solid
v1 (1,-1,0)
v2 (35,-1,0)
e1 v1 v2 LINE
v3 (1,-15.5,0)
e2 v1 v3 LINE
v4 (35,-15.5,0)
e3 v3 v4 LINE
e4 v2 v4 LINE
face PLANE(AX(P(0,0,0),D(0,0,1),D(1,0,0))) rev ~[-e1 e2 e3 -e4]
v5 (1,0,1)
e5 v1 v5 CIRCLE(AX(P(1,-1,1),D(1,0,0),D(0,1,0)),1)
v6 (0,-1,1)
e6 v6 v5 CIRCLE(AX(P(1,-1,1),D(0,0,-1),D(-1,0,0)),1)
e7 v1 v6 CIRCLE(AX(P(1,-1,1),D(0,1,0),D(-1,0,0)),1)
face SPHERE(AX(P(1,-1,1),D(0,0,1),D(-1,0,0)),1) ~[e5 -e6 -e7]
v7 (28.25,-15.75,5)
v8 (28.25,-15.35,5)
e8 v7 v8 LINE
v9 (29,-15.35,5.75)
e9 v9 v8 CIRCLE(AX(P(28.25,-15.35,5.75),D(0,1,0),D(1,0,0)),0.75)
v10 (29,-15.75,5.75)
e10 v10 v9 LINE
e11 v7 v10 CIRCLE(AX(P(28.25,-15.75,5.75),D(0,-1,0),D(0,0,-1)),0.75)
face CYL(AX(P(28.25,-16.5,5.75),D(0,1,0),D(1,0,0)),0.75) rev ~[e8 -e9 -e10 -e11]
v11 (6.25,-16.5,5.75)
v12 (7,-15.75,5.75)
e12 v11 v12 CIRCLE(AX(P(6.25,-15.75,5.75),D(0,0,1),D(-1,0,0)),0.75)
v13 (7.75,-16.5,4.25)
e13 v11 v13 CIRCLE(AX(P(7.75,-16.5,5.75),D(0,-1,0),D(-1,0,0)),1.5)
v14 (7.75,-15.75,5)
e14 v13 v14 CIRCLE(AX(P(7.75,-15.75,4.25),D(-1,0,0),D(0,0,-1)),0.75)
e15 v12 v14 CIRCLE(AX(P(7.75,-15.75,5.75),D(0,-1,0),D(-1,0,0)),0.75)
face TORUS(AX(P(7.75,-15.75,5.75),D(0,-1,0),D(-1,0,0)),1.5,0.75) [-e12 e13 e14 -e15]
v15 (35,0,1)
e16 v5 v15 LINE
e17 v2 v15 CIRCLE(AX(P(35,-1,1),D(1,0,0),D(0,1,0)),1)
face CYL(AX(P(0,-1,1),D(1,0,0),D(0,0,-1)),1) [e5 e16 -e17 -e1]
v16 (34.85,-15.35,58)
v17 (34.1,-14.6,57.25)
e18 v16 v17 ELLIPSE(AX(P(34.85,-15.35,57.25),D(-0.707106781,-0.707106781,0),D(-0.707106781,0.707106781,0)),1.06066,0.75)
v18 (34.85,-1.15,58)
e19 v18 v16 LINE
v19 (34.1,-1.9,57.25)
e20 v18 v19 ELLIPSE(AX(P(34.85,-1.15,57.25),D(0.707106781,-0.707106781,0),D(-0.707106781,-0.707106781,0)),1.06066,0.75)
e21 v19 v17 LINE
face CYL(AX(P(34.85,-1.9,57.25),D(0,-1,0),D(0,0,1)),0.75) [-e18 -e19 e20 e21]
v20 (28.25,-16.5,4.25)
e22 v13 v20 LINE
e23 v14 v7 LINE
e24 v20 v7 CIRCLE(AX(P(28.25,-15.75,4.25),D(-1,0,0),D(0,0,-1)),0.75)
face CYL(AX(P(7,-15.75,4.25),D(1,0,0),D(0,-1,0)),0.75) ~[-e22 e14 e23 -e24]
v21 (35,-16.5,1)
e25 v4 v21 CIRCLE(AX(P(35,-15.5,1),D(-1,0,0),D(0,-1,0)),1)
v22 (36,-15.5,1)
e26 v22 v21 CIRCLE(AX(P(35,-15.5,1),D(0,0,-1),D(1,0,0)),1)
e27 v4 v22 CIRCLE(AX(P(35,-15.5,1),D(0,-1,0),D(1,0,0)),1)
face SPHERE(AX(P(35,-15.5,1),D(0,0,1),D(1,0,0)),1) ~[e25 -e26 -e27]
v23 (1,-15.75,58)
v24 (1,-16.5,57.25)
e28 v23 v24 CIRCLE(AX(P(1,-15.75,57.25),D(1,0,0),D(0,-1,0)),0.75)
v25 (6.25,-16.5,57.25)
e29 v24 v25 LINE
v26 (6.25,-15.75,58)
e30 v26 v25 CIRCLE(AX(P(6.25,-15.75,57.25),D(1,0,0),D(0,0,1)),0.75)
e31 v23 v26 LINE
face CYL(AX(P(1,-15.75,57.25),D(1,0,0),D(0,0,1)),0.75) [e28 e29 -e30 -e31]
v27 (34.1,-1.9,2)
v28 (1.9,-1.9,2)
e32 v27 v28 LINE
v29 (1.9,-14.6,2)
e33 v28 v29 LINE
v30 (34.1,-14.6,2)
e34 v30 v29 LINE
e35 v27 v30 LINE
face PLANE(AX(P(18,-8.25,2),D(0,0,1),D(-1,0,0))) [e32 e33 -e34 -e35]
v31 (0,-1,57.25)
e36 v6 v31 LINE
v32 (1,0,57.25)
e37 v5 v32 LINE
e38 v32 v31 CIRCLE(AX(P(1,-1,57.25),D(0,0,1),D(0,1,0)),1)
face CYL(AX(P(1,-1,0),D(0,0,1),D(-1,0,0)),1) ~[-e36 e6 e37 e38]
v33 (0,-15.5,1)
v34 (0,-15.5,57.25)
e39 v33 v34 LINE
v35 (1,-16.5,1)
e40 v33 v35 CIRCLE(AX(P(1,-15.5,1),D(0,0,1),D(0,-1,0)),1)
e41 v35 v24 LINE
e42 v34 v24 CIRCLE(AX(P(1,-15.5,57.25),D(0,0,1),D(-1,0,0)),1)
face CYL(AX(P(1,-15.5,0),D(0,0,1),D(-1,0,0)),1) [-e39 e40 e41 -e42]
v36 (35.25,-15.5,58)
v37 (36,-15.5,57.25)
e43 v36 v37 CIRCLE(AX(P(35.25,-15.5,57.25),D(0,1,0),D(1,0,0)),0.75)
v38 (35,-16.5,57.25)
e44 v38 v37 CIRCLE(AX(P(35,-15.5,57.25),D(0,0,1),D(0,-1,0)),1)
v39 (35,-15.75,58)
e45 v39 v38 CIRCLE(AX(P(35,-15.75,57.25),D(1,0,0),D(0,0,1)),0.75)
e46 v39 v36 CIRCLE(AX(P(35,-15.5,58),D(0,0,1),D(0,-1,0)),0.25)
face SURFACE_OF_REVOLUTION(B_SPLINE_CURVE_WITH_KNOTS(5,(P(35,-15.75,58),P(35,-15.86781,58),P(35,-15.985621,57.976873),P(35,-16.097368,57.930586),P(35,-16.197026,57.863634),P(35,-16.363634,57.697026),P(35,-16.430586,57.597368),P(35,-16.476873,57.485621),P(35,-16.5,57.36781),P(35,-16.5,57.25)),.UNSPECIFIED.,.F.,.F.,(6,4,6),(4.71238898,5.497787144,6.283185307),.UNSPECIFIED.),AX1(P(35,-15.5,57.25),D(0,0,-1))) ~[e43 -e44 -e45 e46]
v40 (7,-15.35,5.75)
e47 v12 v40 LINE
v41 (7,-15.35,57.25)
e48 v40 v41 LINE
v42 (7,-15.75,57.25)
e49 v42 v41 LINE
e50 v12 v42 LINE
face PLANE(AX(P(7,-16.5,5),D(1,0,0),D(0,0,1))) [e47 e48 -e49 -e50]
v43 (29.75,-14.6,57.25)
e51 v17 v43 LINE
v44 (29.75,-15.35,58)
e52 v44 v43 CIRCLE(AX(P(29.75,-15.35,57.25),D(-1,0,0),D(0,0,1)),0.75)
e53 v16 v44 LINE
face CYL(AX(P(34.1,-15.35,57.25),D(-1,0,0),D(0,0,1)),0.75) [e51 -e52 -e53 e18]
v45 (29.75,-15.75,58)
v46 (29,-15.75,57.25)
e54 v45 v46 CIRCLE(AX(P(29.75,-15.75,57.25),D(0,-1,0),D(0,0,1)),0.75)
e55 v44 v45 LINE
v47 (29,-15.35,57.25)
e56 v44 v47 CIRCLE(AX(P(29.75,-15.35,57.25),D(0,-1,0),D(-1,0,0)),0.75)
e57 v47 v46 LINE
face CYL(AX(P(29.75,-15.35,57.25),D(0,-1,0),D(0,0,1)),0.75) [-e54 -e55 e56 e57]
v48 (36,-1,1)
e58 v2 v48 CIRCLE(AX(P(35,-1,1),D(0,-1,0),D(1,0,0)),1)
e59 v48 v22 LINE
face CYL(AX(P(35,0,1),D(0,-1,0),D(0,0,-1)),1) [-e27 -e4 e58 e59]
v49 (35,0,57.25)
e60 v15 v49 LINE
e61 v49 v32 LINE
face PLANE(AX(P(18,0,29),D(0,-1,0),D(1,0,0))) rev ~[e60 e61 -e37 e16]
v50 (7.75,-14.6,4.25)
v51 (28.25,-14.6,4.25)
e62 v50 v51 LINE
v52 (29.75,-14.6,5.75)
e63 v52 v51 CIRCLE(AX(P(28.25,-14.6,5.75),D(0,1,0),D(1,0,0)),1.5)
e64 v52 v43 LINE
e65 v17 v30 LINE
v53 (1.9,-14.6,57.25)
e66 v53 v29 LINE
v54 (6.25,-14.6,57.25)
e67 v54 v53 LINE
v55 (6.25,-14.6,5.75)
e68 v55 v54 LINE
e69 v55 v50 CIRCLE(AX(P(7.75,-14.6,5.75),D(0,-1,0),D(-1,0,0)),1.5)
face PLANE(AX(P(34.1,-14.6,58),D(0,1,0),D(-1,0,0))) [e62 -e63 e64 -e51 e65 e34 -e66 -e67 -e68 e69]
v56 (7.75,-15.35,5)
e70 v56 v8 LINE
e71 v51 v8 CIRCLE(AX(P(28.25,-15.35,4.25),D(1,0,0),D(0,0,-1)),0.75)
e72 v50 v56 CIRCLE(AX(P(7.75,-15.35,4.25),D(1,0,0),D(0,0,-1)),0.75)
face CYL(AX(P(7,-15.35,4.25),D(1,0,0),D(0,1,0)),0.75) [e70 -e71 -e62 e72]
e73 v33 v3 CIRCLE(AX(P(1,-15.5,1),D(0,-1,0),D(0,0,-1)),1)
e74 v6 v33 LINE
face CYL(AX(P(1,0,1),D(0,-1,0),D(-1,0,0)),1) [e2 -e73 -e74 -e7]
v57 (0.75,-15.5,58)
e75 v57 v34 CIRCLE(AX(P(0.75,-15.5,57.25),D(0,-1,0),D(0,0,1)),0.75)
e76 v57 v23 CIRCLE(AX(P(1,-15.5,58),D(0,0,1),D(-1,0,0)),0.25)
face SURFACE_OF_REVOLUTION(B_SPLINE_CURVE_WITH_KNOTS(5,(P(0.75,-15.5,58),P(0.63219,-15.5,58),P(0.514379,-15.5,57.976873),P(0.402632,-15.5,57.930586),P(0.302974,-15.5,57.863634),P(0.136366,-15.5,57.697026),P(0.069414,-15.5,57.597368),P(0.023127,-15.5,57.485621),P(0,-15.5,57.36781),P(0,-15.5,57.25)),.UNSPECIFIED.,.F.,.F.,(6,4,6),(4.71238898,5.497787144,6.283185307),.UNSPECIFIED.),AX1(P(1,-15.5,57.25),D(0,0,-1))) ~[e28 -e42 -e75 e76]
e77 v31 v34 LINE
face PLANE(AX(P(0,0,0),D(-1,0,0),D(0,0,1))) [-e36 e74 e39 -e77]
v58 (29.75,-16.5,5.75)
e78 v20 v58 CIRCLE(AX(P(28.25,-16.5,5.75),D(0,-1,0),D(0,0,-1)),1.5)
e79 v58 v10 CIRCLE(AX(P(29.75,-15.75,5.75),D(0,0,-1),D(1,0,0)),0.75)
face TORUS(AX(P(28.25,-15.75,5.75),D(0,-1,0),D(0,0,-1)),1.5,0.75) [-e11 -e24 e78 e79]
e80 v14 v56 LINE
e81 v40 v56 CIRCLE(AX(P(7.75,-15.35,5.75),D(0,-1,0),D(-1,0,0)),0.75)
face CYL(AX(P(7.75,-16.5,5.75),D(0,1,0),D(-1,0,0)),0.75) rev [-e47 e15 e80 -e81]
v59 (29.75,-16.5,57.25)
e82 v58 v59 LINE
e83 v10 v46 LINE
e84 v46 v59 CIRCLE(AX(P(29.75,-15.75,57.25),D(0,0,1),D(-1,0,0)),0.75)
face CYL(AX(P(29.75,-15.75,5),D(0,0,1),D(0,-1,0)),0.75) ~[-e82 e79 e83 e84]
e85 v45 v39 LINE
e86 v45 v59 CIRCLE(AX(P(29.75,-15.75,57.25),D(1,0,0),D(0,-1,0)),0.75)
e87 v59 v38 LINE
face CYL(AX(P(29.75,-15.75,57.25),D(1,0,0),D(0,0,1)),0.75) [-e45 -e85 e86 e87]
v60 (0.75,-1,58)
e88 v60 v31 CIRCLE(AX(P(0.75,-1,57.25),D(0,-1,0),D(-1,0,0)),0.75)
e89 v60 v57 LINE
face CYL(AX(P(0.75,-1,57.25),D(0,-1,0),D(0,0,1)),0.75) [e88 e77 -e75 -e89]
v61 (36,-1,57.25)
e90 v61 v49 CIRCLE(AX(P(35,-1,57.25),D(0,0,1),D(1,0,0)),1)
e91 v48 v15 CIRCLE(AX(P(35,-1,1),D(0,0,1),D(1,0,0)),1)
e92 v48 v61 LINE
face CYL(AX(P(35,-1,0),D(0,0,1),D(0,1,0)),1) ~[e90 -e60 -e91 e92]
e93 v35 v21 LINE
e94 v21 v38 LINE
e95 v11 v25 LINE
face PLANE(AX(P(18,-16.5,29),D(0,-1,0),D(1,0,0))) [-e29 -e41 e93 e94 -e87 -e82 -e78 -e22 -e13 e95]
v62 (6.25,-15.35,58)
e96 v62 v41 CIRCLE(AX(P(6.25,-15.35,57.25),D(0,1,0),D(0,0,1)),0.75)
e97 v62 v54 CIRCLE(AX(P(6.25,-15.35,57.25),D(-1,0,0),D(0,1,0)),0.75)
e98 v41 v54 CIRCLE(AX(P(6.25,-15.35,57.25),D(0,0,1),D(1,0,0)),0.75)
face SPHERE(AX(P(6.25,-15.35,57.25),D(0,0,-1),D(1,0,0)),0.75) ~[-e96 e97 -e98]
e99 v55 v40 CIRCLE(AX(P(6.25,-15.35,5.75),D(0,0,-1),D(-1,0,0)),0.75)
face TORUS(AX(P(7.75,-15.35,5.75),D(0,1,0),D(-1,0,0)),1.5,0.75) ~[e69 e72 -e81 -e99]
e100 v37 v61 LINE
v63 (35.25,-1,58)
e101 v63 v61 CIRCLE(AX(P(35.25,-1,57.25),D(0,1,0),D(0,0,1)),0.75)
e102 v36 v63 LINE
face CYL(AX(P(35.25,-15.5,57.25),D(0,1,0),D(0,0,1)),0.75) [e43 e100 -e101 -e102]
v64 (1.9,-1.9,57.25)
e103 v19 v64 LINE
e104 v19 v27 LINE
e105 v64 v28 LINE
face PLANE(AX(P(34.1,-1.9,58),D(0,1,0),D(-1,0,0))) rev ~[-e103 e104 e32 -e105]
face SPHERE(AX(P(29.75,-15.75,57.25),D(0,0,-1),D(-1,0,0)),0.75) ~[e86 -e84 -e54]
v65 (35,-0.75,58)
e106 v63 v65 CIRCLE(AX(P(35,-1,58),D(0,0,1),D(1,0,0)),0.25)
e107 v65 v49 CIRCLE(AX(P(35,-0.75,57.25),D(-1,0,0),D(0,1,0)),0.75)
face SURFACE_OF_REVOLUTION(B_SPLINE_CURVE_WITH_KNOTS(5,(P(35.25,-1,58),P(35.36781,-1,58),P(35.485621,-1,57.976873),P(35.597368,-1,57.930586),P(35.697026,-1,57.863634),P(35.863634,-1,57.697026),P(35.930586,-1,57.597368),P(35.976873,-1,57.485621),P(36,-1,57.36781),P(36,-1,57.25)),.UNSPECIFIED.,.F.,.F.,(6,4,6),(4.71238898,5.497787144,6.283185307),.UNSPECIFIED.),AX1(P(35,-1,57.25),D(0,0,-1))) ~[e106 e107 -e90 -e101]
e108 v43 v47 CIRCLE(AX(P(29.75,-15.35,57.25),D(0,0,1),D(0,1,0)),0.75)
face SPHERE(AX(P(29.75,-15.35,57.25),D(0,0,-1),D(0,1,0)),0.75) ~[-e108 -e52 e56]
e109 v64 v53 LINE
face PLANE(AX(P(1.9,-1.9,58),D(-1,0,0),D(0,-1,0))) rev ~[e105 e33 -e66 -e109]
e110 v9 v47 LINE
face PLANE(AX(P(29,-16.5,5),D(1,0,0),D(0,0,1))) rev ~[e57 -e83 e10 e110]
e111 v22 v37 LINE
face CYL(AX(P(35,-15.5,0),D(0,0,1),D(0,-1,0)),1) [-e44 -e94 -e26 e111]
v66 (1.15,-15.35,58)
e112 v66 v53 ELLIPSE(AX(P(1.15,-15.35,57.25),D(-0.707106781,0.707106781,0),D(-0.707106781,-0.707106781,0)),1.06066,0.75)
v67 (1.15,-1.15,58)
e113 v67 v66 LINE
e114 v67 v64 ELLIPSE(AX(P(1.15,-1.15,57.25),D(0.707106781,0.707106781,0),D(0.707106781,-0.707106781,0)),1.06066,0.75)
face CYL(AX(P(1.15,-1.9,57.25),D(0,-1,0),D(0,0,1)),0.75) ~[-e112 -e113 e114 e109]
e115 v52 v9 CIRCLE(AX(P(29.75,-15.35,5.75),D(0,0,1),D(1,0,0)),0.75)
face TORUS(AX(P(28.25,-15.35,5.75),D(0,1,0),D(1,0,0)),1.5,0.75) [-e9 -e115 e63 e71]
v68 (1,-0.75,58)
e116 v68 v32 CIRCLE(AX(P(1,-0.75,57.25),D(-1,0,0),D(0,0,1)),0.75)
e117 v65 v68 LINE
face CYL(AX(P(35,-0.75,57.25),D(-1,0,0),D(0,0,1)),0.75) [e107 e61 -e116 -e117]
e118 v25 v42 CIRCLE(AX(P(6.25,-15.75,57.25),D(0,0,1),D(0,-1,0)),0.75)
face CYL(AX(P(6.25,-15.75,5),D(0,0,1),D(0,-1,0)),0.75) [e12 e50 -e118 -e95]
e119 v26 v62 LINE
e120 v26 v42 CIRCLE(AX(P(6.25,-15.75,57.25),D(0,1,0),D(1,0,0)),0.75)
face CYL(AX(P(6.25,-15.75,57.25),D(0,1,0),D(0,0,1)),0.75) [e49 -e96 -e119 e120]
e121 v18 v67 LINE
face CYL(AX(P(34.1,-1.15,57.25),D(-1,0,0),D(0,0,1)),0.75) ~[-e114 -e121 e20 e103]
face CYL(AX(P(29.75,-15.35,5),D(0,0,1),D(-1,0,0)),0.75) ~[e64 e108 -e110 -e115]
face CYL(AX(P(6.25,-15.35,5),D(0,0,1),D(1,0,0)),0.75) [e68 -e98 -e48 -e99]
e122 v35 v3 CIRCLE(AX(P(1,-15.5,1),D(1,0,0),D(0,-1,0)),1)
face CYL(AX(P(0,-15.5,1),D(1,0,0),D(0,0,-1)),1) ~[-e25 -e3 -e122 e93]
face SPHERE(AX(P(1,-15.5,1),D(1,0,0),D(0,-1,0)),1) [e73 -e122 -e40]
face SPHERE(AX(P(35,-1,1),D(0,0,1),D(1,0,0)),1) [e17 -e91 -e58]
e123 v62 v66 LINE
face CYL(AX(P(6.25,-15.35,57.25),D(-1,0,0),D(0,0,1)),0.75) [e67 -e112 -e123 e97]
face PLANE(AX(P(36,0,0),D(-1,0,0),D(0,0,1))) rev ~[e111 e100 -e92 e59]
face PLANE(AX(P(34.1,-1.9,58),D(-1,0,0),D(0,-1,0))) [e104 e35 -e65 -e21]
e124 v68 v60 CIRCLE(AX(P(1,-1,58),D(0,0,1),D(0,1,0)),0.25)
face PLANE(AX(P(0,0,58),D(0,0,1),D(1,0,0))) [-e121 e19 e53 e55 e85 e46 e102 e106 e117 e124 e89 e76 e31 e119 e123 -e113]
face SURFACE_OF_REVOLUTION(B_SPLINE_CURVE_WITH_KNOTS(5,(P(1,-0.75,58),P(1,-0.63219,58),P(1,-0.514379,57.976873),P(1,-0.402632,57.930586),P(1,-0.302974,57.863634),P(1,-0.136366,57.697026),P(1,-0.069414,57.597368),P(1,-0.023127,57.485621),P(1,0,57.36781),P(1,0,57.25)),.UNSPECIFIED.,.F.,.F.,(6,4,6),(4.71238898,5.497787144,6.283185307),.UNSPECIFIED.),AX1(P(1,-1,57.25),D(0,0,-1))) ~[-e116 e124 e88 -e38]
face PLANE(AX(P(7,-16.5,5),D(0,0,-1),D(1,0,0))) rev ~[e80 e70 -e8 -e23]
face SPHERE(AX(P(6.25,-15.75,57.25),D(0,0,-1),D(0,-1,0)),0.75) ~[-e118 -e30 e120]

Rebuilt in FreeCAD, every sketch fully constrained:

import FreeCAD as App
import Part
import Sketcher
Q = App.Units.Quantity


def edges_at(feature, points):
    """Names of the edges that pass closest to the given points."""
    edges = feature.Shape.Edges
    near = lambda p: min(range(len(edges)), key=lambda i: edges[i].distToShape(Part.Vertex(*p))[0])
    return sorted({f"Edge{near(p) + 1}" for p in points})


def add_polygon(sketch, points):
    """Adds a closed chain of lines whose ends are joined by coincident constraints."""
    first, n = sketch.GeometryCount, len(points)
    for a, b in zip(points, points[1:] + points[:1]):
        sketch.addGeometry(Part.LineSegment(App.Vector(*a, 0), App.Vector(*b, 0)), False)
    for i in range(n):
        sketch.addConstraint(Sketcher.Constraint("Coincident", first + i, 2, first + (i + 1) % n, 1))

doc = App.newDocument("Part")
body = doc.addObject("PartDesign::Body", "Body")

# Sketch on XZ plane
sketch1 = body.newObject("Sketcher::SketchObject", "Sketch")
sketch1.AttachmentSupport = (doc.getObject("XZ_Plane"), [""])
sketch1.MapMode = "FlatFace"
add_polygon(sketch1, [(0, 58), (0, 0), (36, 0), (36, 58)])  # lines 0-3
sketch1.addConstraint(Sketcher.Constraint("Vertical", 0))
sketch1.addConstraint(Sketcher.Constraint("Horizontal", 1))
sketch1.addConstraint(Sketcher.Constraint("Vertical", 2))
sketch1.addConstraint(Sketcher.Constraint("Horizontal", 3))
sketch1.addConstraint(Sketcher.Constraint("Coincident", 0, 2, -1, 1))
sketch1.addConstraint(Sketcher.Constraint("DistanceX", 1, 1, 1, 2, Q("36 mm")))
sketch1.addConstraint(Sketcher.Constraint("DistanceY", 0, 2, 0, 1, Q("58 mm")))
pad1 = body.newObject("PartDesign::Pad", "Pad")
pad1.Profile = sketch1
pad1.Length = 16.5

# Sketch on XZ plane
sketch2 = body.newObject("Sketcher::SketchObject", "Sketch001")
sketch2.AttachmentSupport = (doc.getObject("XZ_Plane"), [""])
sketch2.MapMode = "FlatFace"
sketch2.AttachmentOffset = App.Placement(App.Vector(0, 0, 16.5), App.Rotation())
add_polygon(sketch2, [(7, 58), (7, 5), (29, 5), (29, 58)])  # lines 0-3
sketch2.addConstraint(Sketcher.Constraint("Vertical", 0))
sketch2.addConstraint(Sketcher.Constraint("Horizontal", 1))
sketch2.addConstraint(Sketcher.Constraint("Vertical", 2))
sketch2.addConstraint(Sketcher.Constraint("Horizontal", 3))
sketch2.addConstraint(Sketcher.Constraint("DistanceX", 1, 1, 1, 2, Q("22 mm")))
sketch2.addConstraint(Sketcher.Constraint("DistanceY", 0, 2, 0, 1, Q("53 mm")))
sketch2.addConstraint(Sketcher.Constraint("DistanceX", -1, 1, 0, 2, Q("7 mm")))
sketch2.addConstraint(Sketcher.Constraint("DistanceY", -1, 1, 0, 2, Q("5 mm")))
pocket1 = body.newObject("PartDesign::Pocket", "Pocket")
pocket1.Profile = sketch2
pocket1.Length = 5

# Sketch on XY plane
sketch3 = body.newObject("Sketcher::SketchObject", "Sketch002")
sketch3.AttachmentSupport = (doc.getObject("XY_Plane"), [""])
sketch3.MapMode = "FlatFace"
sketch3.AttachmentOffset = App.Placement(App.Vector(0, 0, 58), App.Rotation())
add_polygon(sketch3, [(34, -15), (34, -2), (2, -2), (2, -15)])  # lines 0-3
sketch3.addConstraint(Sketcher.Constraint("Vertical", 0))
sketch3.addConstraint(Sketcher.Constraint("Horizontal", 1))
sketch3.addConstraint(Sketcher.Constraint("Vertical", 2))
sketch3.addConstraint(Sketcher.Constraint("Horizontal", 3))
sketch3.addConstraint(Sketcher.Constraint("DistanceX", 1, 2, 1, 1, Q("32.2 mm")))
sketch3.addConstraint(Sketcher.Constraint("DistanceY", 0, 1, 0, 2, Q("12.7 mm")))
sketch3.addConstraint(Sketcher.Constraint("DistanceX", -1, 1, 0, 2, Q("34.1 mm")))
sketch3.addConstraint(Sketcher.Constraint("DistanceY", 0, 2, -1, 1, Q("1.9 mm")))
pocket2 = body.newObject("PartDesign::Pocket", "Pocket001")
pocket2.Profile = sketch3
pocket2.Length = 56
doc.recompute()

fillet = body.newObject("PartDesign::Fillet", "Fillet")
fillet.Base = (pocket2, edges_at(pocket2, [
    (36, -16.5, 29),
    (36, 0, 29),
    (36, -8.25, 0),
    (18, -16.5, 0),
    (0, -16.5, 29),
    (0, 0, 29),
    (0, -8.25, 0),
    (18, 0, 0),
]))
fillet.Radius = 1
doc.recompute()

fillet2 = body.newObject("PartDesign::Fillet", "Fillet001")
fillet2.Base = (fillet, edges_at(fillet, [
    (18, -16.5, 5),
    (7, -15.55, 5),
    (29, -16.5, 31.5),
    (29, -15.55, 5),
    (7, -14.6, 31.5),
    (7, -16.5, 31.5),
    (29, -14.6, 31.5),
    (18, -14.6, 5),
]))
fillet2.Radius = 0.75
doc.recompute()

fillet3 = body.newObject("PartDesign::Fillet", "Fillet002")
fillet3.Base = (fillet2, edges_at(fillet2, [
    (32.375, -16.5, 58),
    (1.9, -8.25, 58),
    (0.293, -0.293, 58),
    (34.1, -8.25, 58),
    (35.707, -0.293, 58),
    (18, -1.9, 58),
    (31.925, -14.6, 58),
    (35.707, -16.207, 58),
    (29.22, -14.82, 58),
    (6.689, -16.5, 4.689),
    (29.22, -16.28, 58),
    (6.78, -14.82, 58),
    (18, 0, 58),
    (0, -8.25, 58),
    (3.625, -16.5, 58),
    (36, -8.25, 58),
]))
fillet3.Radius = 0.75

doc.recompute()
